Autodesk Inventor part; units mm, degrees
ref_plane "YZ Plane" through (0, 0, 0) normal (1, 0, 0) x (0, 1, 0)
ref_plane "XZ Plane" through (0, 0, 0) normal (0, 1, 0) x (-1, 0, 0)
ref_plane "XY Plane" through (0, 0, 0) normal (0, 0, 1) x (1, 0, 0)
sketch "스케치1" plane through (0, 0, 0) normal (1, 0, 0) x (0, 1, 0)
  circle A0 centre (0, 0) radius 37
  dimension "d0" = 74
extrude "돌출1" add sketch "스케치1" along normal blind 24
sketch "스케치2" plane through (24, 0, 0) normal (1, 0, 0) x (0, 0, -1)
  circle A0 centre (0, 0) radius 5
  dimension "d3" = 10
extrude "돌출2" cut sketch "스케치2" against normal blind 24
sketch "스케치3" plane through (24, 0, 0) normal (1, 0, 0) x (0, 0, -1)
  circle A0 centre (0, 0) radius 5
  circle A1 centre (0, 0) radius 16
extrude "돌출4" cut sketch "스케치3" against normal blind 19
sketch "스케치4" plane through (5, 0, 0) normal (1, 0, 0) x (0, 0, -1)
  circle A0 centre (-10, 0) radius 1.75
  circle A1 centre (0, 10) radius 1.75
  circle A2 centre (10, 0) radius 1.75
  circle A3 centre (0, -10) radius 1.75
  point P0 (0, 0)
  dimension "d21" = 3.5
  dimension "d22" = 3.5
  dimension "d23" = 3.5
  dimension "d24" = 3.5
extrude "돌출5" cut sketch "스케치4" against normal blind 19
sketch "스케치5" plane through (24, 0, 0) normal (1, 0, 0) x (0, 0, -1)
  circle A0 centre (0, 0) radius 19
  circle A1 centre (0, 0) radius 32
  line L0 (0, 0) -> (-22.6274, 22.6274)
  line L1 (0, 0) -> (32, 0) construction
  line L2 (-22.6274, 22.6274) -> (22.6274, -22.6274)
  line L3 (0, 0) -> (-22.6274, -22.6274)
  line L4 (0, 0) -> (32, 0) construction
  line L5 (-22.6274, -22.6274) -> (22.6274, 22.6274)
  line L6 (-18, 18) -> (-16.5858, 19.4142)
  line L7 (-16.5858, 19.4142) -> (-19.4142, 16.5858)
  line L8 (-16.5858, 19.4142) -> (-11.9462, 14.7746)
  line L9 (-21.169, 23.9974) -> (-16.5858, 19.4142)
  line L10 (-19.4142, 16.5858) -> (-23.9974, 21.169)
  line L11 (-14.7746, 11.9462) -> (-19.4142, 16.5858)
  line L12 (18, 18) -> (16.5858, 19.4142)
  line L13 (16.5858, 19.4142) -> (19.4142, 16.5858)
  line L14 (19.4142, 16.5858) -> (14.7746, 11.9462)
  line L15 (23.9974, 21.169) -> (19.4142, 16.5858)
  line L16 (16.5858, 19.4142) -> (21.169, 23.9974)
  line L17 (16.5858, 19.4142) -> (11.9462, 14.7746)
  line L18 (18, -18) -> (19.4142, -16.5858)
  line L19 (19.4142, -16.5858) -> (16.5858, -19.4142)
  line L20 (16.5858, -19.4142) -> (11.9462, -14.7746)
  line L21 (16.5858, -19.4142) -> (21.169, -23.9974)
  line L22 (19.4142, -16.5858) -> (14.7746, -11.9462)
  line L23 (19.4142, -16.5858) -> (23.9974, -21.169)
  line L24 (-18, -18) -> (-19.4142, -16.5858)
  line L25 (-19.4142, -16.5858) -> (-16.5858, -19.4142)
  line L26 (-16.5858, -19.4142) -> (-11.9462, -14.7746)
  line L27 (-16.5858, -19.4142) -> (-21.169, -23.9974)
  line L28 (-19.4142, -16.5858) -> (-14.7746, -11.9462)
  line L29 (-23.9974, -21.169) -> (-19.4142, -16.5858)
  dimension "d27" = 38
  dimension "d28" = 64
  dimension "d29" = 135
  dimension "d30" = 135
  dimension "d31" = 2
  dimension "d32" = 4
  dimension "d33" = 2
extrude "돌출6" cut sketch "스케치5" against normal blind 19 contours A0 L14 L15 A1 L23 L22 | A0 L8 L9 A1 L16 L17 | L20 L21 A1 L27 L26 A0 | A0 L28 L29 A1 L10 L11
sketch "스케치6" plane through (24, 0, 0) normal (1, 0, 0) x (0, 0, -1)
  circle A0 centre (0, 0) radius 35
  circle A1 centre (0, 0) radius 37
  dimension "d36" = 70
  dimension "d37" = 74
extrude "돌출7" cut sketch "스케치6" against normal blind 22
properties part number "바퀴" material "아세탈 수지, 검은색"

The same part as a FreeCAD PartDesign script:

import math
import FreeCAD as App
import Part
import Sketcher

V = App.Vector
Q = App.Units.Quantity

doc = App.newDocument("Part")
body = doc.addObject("PartDesign::Body", "Body")

# Sketch on YZ plane
sketch1 = body.newObject("Sketcher::SketchObject", "Sketch")
sketch1.AttachmentSupport = (doc.getObject("YZ_Plane"), [""])
sketch1.MapMode = "FlatFace"
sketch1.addGeometry(Part.Circle(V(0, 0, 0), V(0, 0, 1), 37), False)
sketch1.addConstraint(Sketcher.Constraint("Coincident", 0, 3, -1, 1))
sketch1.addConstraint(Sketcher.Constraint("Diameter", 0, Q("74 mm")))
pad1 = body.newObject("PartDesign::Pad", "Pad")
pad1.Profile = sketch1
pad1.Length = 24

# Sketch on YZ plane
sketch2 = body.newObject("Sketcher::SketchObject", "Sketch001")
sketch2.AttachmentSupport = (doc.getObject("YZ_Plane"), [""])
sketch2.MapMode = "FlatFace"
sketch2.AttachmentOffset = App.Placement(V(0, 0, 24), App.Rotation())
sketch2.addGeometry(Part.Circle(V(0, 0, 0), V(0, 0, 1), 5), False)
sketch2.addConstraint(Sketcher.Constraint("Coincident", 0, 3, -1, 1))
sketch2.addConstraint(Sketcher.Constraint("Diameter", 0, Q("10 mm")))
pocket1 = body.newObject("PartDesign::Pocket", "Pocket")
pocket1.Profile = sketch2
pocket1.Length = 24

# Sketch on YZ plane
sketch3 = body.newObject("Sketcher::SketchObject", "Sketch002")
sketch3.AttachmentSupport = (doc.getObject("YZ_Plane"), [""])
sketch3.MapMode = "FlatFace"
sketch3.AttachmentOffset = App.Placement(V(0, 0, 24), App.Rotation())
sketch3.addGeometry(Part.Circle(V(0, 0, 0), V(0, 0, 1), 16), False)
sketch3.addGeometry(Part.Circle(V(0, 0, 0), V(0, 0, 1), 5), False)
sketch3.addConstraint(Sketcher.Constraint("Coincident", 0, 3, -1, 1))
sketch3.addConstraint(Sketcher.Constraint("Coincident", 1, 3, -1, 1))
sketch3.addConstraint(Sketcher.Constraint("Diameter", 0, Q("32 mm")))
sketch3.addConstraint(Sketcher.Constraint("Diameter", 1, Q("10 mm")))
pocket2 = body.newObject("PartDesign::Pocket", "Pocket001")
pocket2.Profile = sketch3
pocket2.Length = 19

# Sketch on YZ plane
sketch4 = body.newObject("Sketcher::SketchObject", "Sketch003")
sketch4.AttachmentSupport = (doc.getObject("YZ_Plane"), [""])
sketch4.MapMode = "FlatFace"
sketch4.AttachmentOffset = App.Placement(V(0, 0, 5), App.Rotation())
sketch4.addGeometry(Part.Circle(V(0, 10, 0), V(0, 0, 1), 1.75), False)
sketch4.addGeometry(Part.Circle(V(10, 0, 0), V(0, 0, 1), 1.75), False)
sketch4.addGeometry(Part.Circle(V(0, -10, 0), V(0, 0, 1), 1.75), False)
sketch4.addGeometry(Part.Circle(V(-10, 0, 0), V(0, 0, 1), 1.75), False)
sketch4.addConstraint(Sketcher.Constraint("Equal", 0, 1))
sketch4.addConstraint(Sketcher.Constraint("Equal", 1, 2))
sketch4.addConstraint(Sketcher.Constraint("Equal", 2, 3))
sketch4.addConstraint(Sketcher.Constraint("Symmetric", 0, 3, 2, 3, -1, 1))
sketch4.addConstraint(Sketcher.Constraint("Symmetric", 1, 3, 3, 3, -1, 1))
sketch4.addConstraint(Sketcher.Constraint("PointOnObject", 0, 3, -2))
sketch4.addConstraint(Sketcher.Constraint("PointOnObject", 1, 3, -1))
sketch4.addConstraint(Sketcher.Constraint("Diameter", 0, Q("3.5 mm")))
sketch4.addConstraint(Sketcher.Constraint("DistanceY", -1, 1, 0, 3, Q("10 mm")))
sketch4.addConstraint(Sketcher.Constraint("DistanceX", -1, 1, 1, 3, Q("10 mm")))
pocket3 = body.newObject("PartDesign::Pocket", "Pocket002")
pocket3.Profile = sketch4
pocket3.Length = 19

# Sketch on YZ plane
sketch5 = body.newObject("Sketcher::SketchObject", "Sketch004")
sketch5.AttachmentSupport = (doc.getObject("YZ_Plane"), [""])
sketch5.MapMode = "FlatFace"
sketch5.AttachmentOffset = App.Placement(V(0, 0, 24), App.Rotation())
sketch5.addGeometry(Part.ArcOfCircle(Part.Circle(V(0, 0, 0), V(0, 0, 1), 19), math.radians(-128.957734), math.radians(-51.042266)), False)
sketch5.addGeometry(Part.LineSegment(V(-11.9462, -14.7746, 0), V(-21.169, -23.9974, 0)), False)
sketch5.addGeometry(Part.ArcOfCircle(Part.Circle(V(0, 0, 0), V(0, 0, 1), 32), math.radians(-131.416716), math.radians(-48.583284)), False)
sketch5.addGeometry(Part.LineSegment(V(21.169, -23.9974, 0), V(11.9462, -14.7746, 0)), False)
sketch5.addGeometry(Part.ArcOfCircle(Part.Circle(V(0, 0, 0), V(0, 0, 1), 19), math.radians(-38.957734), math.radians(38.957734)), False)
sketch5.addGeometry(Part.LineSegment(V(14.7746, -11.9462, 0), V(23.9974, -21.169, 0)), False)
sketch5.addGeometry(Part.ArcOfCircle(Part.Circle(V(0, 0, 0), V(0, 0, 1), 32), math.radians(-41.416716), math.radians(41.416716)), False)
sketch5.addGeometry(Part.LineSegment(V(23.9974, 21.169, 0), V(14.7746, 11.9462, 0)), False)
sketch5.addGeometry(Part.LineSegment(V(-23.9974, -21.169, 0), V(-14.7746, -11.9462, 0)), False)
sketch5.addGeometry(Part.ArcOfCircle(Part.Circle(V(0, 0, 0), V(0, 0, 1), 19), math.radians(141.042266), math.radians(218.957734)), False)
sketch5.addGeometry(Part.LineSegment(V(-14.7746, 11.9462, 0), V(-23.9974, 21.169, 0)), False)
sketch5.addGeometry(Part.ArcOfCircle(Part.Circle(V(0, 0, 0), V(0, 0, 1), 32), math.radians(138.583284), math.radians(221.416716)), False)
sketch5.addGeometry(Part.ArcOfCircle(Part.Circle(V(0, 0, 0), V(0, 0, 1), 19), math.radians(51.042266), math.radians(128.957734)), False)
sketch5.addGeometry(Part.LineSegment(V(11.9462, 14.7746, 0), V(21.169, 23.9974, 0)), False)
sketch5.addGeometry(Part.ArcOfCircle(Part.Circle(V(0, 0, 0), V(0, 0, 1), 32), math.radians(48.583284), math.radians(131.416716)), False)
sketch5.addGeometry(Part.LineSegment(V(-21.169, 23.9974, 0), V(-11.9462, 14.7746, 0)), False)
sketch5.addConstraint(Sketcher.Constraint("Coincident", 0, 1, 1, 1))
sketch5.addConstraint(Sketcher.Constraint("Coincident", 1, 2, 2, 1))
sketch5.addConstraint(Sketcher.Constraint("Coincident", 2, 2, 3, 1))
sketch5.addConstraint(Sketcher.Constraint("Coincident", 3, 2, 0, 2))
sketch5.addConstraint(Sketcher.Constraint("Coincident", 4, 1, 5, 1))
sketch5.addConstraint(Sketcher.Constraint("Coincident", 5, 2, 6, 1))
sketch5.addConstraint(Sketcher.Constraint("Coincident", 6, 2, 7, 1))
sketch5.addConstraint(Sketcher.Constraint("Coincident", 7, 2, 4, 2))
sketch5.addConstraint(Sketcher.Constraint("Coincident", 8, 2, 9, 2))
sketch5.addConstraint(Sketcher.Constraint("Coincident", 9, 1, 10, 1))
sketch5.addConstraint(Sketcher.Constraint("Coincident", 10, 2, 11, 1))
sketch5.addConstraint(Sketcher.Constraint("Coincident", 11, 2, 8, 1))
sketch5.addConstraint(Sketcher.Constraint("Coincident", 12, 1, 13, 1))
sketch5.addConstraint(Sketcher.Constraint("Coincident", 13, 2, 14, 1))
sketch5.addConstraint(Sketcher.Constraint("Coincident", 14, 2, 15, 1))
sketch5.addConstraint(Sketcher.Constraint("Coincident", 15, 2, 12, 2))
sketch5.addConstraint(Sketcher.Constraint("Coincident", 0, 3, -1, 1))
sketch5.addConstraint(Sketcher.Constraint("Coincident", 2, 3, -1, 1))
sketch5.addConstraint(Sketcher.Constraint("Coincident", 4, 3, -1, 1))
sketch5.addConstraint(Sketcher.Constraint("Coincident", 6, 3, -1, 1))
sketch5.addConstraint(Sketcher.Constraint("Coincident", 9, 3, -1, 1))
sketch5.addConstraint(Sketcher.Constraint("Coincident", 11, 3, -1, 1))
sketch5.addConstraint(Sketcher.Constraint("Coincident", 12, 3, -1, 1))
sketch5.addConstraint(Sketcher.Constraint("Coincident", 14, 3, -1, 1))
sketch5.addConstraint(Sketcher.Constraint("Equal", 0, 4))
sketch5.addConstraint(Sketcher.Constraint("Equal", 2, 6))
sketch5.addConstraint(Sketcher.Constraint("Equal", 4, 9))
sketch5.addConstraint(Sketcher.Constraint("Equal", 6, 11))
sketch5.addConstraint(Sketcher.Constraint("Equal", 9, 12))
sketch5.addConstraint(Sketcher.Constraint("Equal", 11, 14))
sketch5.addConstraint(Sketcher.Constraint("Perpendicular", 1, 3))
sketch5.addConstraint(Sketcher.Constraint("Parallel", 3, 5))
sketch5.addConstraint(Sketcher.Constraint("Perpendicular", 5, 7))
sketch5.addConstraint(Sketcher.Constraint("Parallel", 7, 8))
sketch5.addConstraint(Sketcher.Constraint("Perpendicular", 8, 10))
sketch5.addConstraint(Sketcher.Constraint("Perpendicular", 10, 13))
sketch5.addConstraint(Sketcher.Constraint("Perpendicular", 13, 15))
sketch5.addConstraint(Sketcher.Constraint("Horizontal", 1, 2, 2, 2))
sketch5.addConstraint(Sketcher.Constraint("Horizontal", 0, 1, 3, 2))
sketch5.addConstraint(Sketcher.Constraint("Horizontal", 4, 1, 8, 2))
sketch5.addConstraint(Sketcher.Constraint("Horizontal", 7, 2, 9, 1))
sketch5.addConstraint(Sketcher.Constraint("Horizontal", 13, 2, 14, 2))
sketch5.addConstraint(Sketcher.Constraint("Vertical", 5, 2, 6, 2))
sketch5.addConstraint(Sketcher.Constraint("Vertical", 3, 2, 12, 1))
sketch5.addConstraint(Sketcher.Constraint("Equal", 3, 5))
sketch5.addConstraint(Sketcher.Constraint("Radius", 0, Q("19 mm")))
sketch5.addConstraint(Sketcher.Constraint("Radius", 2, Q("32 mm")))
sketch5.addConstraint(Sketcher.Constraint("Distance", 1, Q("13.043 mm")))
pocket4 = body.newObject("PartDesign::Pocket", "Pocket003")
pocket4.Profile = sketch5
pocket4.Length = 19

# Sketch on YZ plane
sketch6 = body.newObject("Sketcher::SketchObject", "Sketch005")
sketch6.AttachmentSupport = (doc.getObject("YZ_Plane"), [""])
sketch6.MapMode = "FlatFace"
sketch6.AttachmentOffset = App.Placement(V(0, 0, 24), App.Rotation())
sketch6.addGeometry(Part.Circle(V(0, 0, 0), V(0, 0, 1), 37), False)
sketch6.addGeometry(Part.Circle(V(0, 0, 0), V(0, 0, 1), 35), False)
sketch6.addConstraint(Sketcher.Constraint("Coincident", 0, 3, -1, 1))
sketch6.addConstraint(Sketcher.Constraint("Coincident", 1, 3, -1, 1))
sketch6.addConstraint(Sketcher.Constraint("Diameter", 0, Q("74 mm")))
sketch6.addConstraint(Sketcher.Constraint("Diameter", 1, Q("70 mm")))
pocket5 = body.newObject("PartDesign::Pocket", "Pocket004")
pocket5.Profile = sketch6
pocket5.Length = 22

doc.recompute()
